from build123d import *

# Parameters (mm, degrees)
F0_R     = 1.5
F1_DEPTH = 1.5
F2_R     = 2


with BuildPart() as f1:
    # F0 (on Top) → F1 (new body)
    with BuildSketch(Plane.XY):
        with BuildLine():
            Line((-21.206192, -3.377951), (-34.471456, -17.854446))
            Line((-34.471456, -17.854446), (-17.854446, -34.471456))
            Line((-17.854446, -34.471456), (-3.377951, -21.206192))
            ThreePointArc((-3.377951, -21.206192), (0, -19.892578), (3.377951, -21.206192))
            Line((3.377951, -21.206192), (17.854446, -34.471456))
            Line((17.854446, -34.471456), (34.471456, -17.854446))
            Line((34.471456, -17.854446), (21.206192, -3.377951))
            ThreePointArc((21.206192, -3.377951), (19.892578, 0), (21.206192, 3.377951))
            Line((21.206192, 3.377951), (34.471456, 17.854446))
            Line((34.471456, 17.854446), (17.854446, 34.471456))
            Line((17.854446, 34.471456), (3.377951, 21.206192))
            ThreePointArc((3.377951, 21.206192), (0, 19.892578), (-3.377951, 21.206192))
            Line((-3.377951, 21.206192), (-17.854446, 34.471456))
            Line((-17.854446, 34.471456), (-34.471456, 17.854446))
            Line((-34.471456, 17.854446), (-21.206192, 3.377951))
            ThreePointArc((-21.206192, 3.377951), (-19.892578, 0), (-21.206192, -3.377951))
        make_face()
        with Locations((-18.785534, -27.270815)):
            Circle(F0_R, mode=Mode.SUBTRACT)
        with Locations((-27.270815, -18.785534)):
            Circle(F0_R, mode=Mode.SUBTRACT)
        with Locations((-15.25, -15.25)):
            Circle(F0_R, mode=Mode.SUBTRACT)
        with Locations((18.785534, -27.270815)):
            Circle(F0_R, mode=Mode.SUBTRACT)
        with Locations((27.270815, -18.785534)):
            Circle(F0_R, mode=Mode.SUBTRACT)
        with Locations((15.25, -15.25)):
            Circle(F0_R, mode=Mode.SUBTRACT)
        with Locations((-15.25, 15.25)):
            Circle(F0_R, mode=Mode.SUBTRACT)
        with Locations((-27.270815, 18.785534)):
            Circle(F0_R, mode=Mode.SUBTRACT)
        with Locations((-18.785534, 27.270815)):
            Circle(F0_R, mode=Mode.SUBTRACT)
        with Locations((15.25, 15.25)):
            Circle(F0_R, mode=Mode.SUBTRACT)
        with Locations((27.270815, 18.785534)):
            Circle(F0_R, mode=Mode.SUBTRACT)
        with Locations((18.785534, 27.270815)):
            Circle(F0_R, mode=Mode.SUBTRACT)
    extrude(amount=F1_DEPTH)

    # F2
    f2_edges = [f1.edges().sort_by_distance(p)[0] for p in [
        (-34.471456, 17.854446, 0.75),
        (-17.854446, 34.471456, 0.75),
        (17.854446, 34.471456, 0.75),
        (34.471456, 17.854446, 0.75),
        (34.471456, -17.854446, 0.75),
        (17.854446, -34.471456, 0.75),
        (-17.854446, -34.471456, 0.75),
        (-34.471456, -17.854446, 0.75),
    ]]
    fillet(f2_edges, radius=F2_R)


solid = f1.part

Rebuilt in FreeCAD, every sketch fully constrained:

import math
import FreeCAD as App
import Part
import Sketcher

V = App.Vector
Q = App.Units.Quantity


def edges_at(feature, points):
    """Names of the edges that pass closest to the given points."""
    edges = feature.Shape.Edges
    near = lambda p: min(range(len(edges)), key=lambda i: edges[i].distToShape(Part.Vertex(*p))[0])
    return sorted({f"Edge{near(p) + 1}" for p in points})

doc = App.newDocument("Part")
body = doc.addObject("PartDesign::Body", "Body")

# Sketch on XY plane
sketch1 = body.newObject("Sketcher::SketchObject", "Sketch")
sketch1.AttachmentSupport = (doc.getObject("XY_Plane"), [""])
sketch1.MapMode = "FlatFace"
sketch1.addGeometry(Part.LineSegment(V(-21.2, -3.4, 0), V(-34.5, -17.9, 0)), False)
sketch1.addGeometry(Part.LineSegment(V(-34.5, -17.9, 0), V(-17.9, -34.5, 0)), False)
sketch1.addGeometry(Part.LineSegment(V(-17.9, -34.5, 0), V(-3.4, -21.2, 0)), False)
sketch1.addGeometry(Part.ArcOfCircle(Part.Circle(V(0, -24.9, 0), V(0, 0, 1), 5), math.radians(47), math.radians(133)), False)
sketch1.addGeometry(Part.LineSegment(V(3.4, -21.2, 0), V(17.9, -34.5, 0)), False)
sketch1.addGeometry(Part.LineSegment(V(17.9, -34.5, 0), V(34.5, -17.9, 0)), False)
sketch1.addGeometry(Part.LineSegment(V(34.5, -17.9, 0), V(21.2, -3.4, 0)), False)
sketch1.addGeometry(Part.ArcOfCircle(Part.Circle(V(24.9, 0, 0), V(0, 0, 1), 5), math.radians(137), math.radians(223)), False)
sketch1.addGeometry(Part.LineSegment(V(21.2, 3.4, 0), V(34.5, 17.9, 0)), False)
sketch1.addGeometry(Part.LineSegment(V(34.5, 17.9, 0), V(17.9, 34.5, 0)), False)
sketch1.addGeometry(Part.LineSegment(V(17.9, 34.5, 0), V(3.4, 21.2, 0)), False)
sketch1.addGeometry(Part.ArcOfCircle(Part.Circle(V(0, 24.9, 0), V(0, 0, 1), 5), math.radians(-133), math.radians(-47)), False)
sketch1.addGeometry(Part.LineSegment(V(-3.4, 21.2, 0), V(-17.9, 34.5, 0)), False)
sketch1.addGeometry(Part.LineSegment(V(-17.9, 34.5, 0), V(-34.5, 17.9, 0)), False)
sketch1.addGeometry(Part.LineSegment(V(-34.5, 17.9, 0), V(-21.2, 3.4, 0)), False)
sketch1.addGeometry(Part.ArcOfCircle(Part.Circle(V(-24.9, 0, 0), V(0, 0, 1), 5), math.radians(-43), math.radians(43)), False)
sketch1.addGeometry(Part.Circle(V(-18.8, -27.3, 0), V(0, 0, 1), 1.5), False)
sketch1.addGeometry(Part.Circle(V(-27.3, -18.8, 0), V(0, 0, 1), 1.5), False)
sketch1.addGeometry(Part.Circle(V(-15.2, -15.2, 0), V(0, 0, 1), 1.5), False)
sketch1.addGeometry(Part.Circle(V(18.8, -27.3, 0), V(0, 0, 1), 1.5), False)
sketch1.addGeometry(Part.Circle(V(15.2, -15.2, 0), V(0, 0, 1), 1.5), False)
sketch1.addGeometry(Part.Circle(V(27.3, -18.8, 0), V(0, 0, 1), 1.5), False)
sketch1.addGeometry(Part.Circle(V(-27.3, 18.8, 0), V(0, 0, 1), 1.5), False)
sketch1.addGeometry(Part.Circle(V(-15.2, 15.2, 0), V(0, 0, 1), 1.5), False)
sketch1.addGeometry(Part.Circle(V(-18.8, 27.3, 0), V(0, 0, 1), 1.5), False)
sketch1.addGeometry(Part.Circle(V(15.2, 15.2, 0), V(0, 0, 1), 1.5), False)
sketch1.addGeometry(Part.Circle(V(27.3, 18.8, 0), V(0, 0, 1), 1.5), False)
sketch1.addGeometry(Part.Circle(V(18.8, 27.3, 0), V(0, 0, 1), 1.5), False)
sketch1.addConstraint(Sketcher.Constraint("Coincident", 0, 2, 1, 1))
sketch1.addConstraint(Sketcher.Constraint("Coincident", 1, 2, 2, 1))
sketch1.addConstraint(Sketcher.Constraint("Tangent", 2, 2, 3, 2))
sketch1.addConstraint(Sketcher.Constraint("Tangent", 3, 1, 4, 1))
sketch1.addConstraint(Sketcher.Constraint("Coincident", 4, 2, 5, 1))
sketch1.addConstraint(Sketcher.Constraint("Coincident", 5, 2, 6, 1))
sketch1.addConstraint(Sketcher.Constraint("Tangent", 6, 2, 7, 2))
sketch1.addConstraint(Sketcher.Constraint("Tangent", 7, 1, 8, 1))
sketch1.addConstraint(Sketcher.Constraint("Coincident", 8, 2, 9, 1))
sketch1.addConstraint(Sketcher.Constraint("Coincident", 9, 2, 10, 1))
sketch1.addConstraint(Sketcher.Constraint("Tangent", 10, 2, 11, 2))
sketch1.addConstraint(Sketcher.Constraint("Tangent", 11, 1, 12, 1))
sketch1.addConstraint(Sketcher.Constraint("Coincident", 12, 2, 13, 1))
sketch1.addConstraint(Sketcher.Constraint("Coincident", 13, 2, 14, 1))
sketch1.addConstraint(Sketcher.Constraint("Tangent", 14, 2, 15, 2))
sketch1.addConstraint(Sketcher.Constraint("Tangent", 15, 1, 0, 1))
sketch1.addConstraint(Sketcher.Constraint("Equal", 3, 7))
sketch1.addConstraint(Sketcher.Constraint("Equal", 7, 11))
sketch1.addConstraint(Sketcher.Constraint("Equal", 11, 15))
sketch1.addConstraint(Sketcher.Constraint("Equal", 16, 17))
sketch1.addConstraint(Sketcher.Constraint("Equal", 17, 18))
sketch1.addConstraint(Sketcher.Constraint("Equal", 18, 19))
sketch1.addConstraint(Sketcher.Constraint("Equal", 19, 20))
sketch1.addConstraint(Sketcher.Constraint("Equal", 20, 21))
sketch1.addConstraint(Sketcher.Constraint("Equal", 21, 22))
sketch1.addConstraint(Sketcher.Constraint("Equal", 22, 23))
sketch1.addConstraint(Sketcher.Constraint("Equal", 23, 24))
sketch1.addConstraint(Sketcher.Constraint("Equal", 24, 25))
sketch1.addConstraint(Sketcher.Constraint("Equal", 25, 26))
sketch1.addConstraint(Sketcher.Constraint("Equal", 26, 27))
sketch1.addConstraint(Sketcher.Constraint("Symmetric", 3, 3, 11, 3, -1, 1))
sketch1.addConstraint(Sketcher.Constraint("Symmetric", 7, 3, 15, 3, -1, 1))
sketch1.addConstraint(Sketcher.Constraint("Symmetric", 21, 3, 22, 3, -1, 1))
sketch1.addConstraint(Sketcher.Constraint("Symmetric", 20, 3, 23, 3, -1, 1))
sketch1.addConstraint(Sketcher.Constraint("Symmetric", 19, 3, 24, 3, -1, 1))
sketch1.addConstraint(Sketcher.Constraint("Symmetric", 18, 3, 25, 3, -1, 1))
sketch1.addConstraint(Sketcher.Constraint("Symmetric", 17, 3, 26, 3, -1, 1))
sketch1.addConstraint(Sketcher.Constraint("Symmetric", 16, 3, 27, 3, -1, 1))
sketch1.addConstraint(Sketcher.Constraint("Symmetric", 0, 2, 8, 2, -1, 1))
sketch1.addConstraint(Sketcher.Constraint("Symmetric", 1, 2, 9, 2, -1, 1))
sketch1.addConstraint(Sketcher.Constraint("Symmetric", 4, 2, 12, 2, -1, 1))
sketch1.addConstraint(Sketcher.Constraint("Symmetric", 5, 2, 13, 2, -1, 1))
sketch1.addConstraint(Sketcher.Constraint("Symmetric", 16, 3, 19, 3, -2))
sketch1.addConstraint(Sketcher.Constraint("Symmetric", 18, 3, 20, 3, -2))
sketch1.addConstraint(Sketcher.Constraint("Symmetric", 17, 3, 21, 3, -2))
sketch1.addConstraint(Sketcher.Constraint("Symmetric", 2, 2, 3, 1, -2))
sketch1.addConstraint(Sketcher.Constraint("Symmetric", 0, 2, 5, 2, -2))
sketch1.addConstraint(Sketcher.Constraint("PointOnObject", 7, 3, -1))
sketch1.addConstraint(Sketcher.Constraint("Perpendicular", 0, 4))
sketch1.addConstraint(Sketcher.Constraint("Perpendicular", 1, 5))
sketch1.addConstraint(Sketcher.Constraint("Horizontal", 1, 2, 4, 2))
sketch1.addConstraint(Sketcher.Constraint("Equal", 0, 2))
sketch1.addConstraint(Sketcher.Constraint("Diameter", 16, 3.0))
sketch1.addConstraint(Sketcher.Constraint("Angle", 0, Q("-132.500001 deg")))
sketch1.addConstraint(Sketcher.Constraint("Distance", 1, 23.500001))
sketch1.addConstraint(Sketcher.Constraint("DistanceX", 18, 3, 20, 3, 30.5))
sketch1.addConstraint(Sketcher.Constraint("DistanceY", 18, 3, 23, 3, 30.5))
sketch1.addConstraint(Sketcher.Constraint("Radius", 3, 4.999998))
sketch1.addConstraint(Sketcher.Constraint("DistanceY", 3, 3, 11, 3, 49.785152))
sketch1.addConstraint(Sketcher.Constraint("DistanceY", 16, 3, 3, 3, 2.378239))
sketch1.addConstraint(Sketcher.Constraint("DistanceX", 15, 3, 16, 3, 6.107042))
sketch1.addConstraint(Sketcher.Constraint("DistanceX", 17, 3, 16, 3, 8.485281))
sketch1.addConstraint(Sketcher.Constraint("DistanceY", 16, 3, 17, 3, 8.485281))
pad1 = body.newObject("PartDesign::Pad", "Pad")
pad1.Profile = sketch1
pad1.Length = 1.5
doc.recompute()

fillet = body.newObject("PartDesign::Fillet", "Fillet")
fillet.Base = (pad1, edges_at(pad1, [
    (-34.471, 17.854, 0.75),
    (-17.854, 34.471, 0.75),
    (17.854, 34.471, 0.75),
    (34.471, 17.854, 0.75),
    (34.471, -17.854, 0.75),
    (17.854, -34.471, 0.75),
    (-17.854, -34.471, 0.75),
    (-34.471, -17.854, 0.75),
]))
fillet.Radius = 2

doc.recompute()
